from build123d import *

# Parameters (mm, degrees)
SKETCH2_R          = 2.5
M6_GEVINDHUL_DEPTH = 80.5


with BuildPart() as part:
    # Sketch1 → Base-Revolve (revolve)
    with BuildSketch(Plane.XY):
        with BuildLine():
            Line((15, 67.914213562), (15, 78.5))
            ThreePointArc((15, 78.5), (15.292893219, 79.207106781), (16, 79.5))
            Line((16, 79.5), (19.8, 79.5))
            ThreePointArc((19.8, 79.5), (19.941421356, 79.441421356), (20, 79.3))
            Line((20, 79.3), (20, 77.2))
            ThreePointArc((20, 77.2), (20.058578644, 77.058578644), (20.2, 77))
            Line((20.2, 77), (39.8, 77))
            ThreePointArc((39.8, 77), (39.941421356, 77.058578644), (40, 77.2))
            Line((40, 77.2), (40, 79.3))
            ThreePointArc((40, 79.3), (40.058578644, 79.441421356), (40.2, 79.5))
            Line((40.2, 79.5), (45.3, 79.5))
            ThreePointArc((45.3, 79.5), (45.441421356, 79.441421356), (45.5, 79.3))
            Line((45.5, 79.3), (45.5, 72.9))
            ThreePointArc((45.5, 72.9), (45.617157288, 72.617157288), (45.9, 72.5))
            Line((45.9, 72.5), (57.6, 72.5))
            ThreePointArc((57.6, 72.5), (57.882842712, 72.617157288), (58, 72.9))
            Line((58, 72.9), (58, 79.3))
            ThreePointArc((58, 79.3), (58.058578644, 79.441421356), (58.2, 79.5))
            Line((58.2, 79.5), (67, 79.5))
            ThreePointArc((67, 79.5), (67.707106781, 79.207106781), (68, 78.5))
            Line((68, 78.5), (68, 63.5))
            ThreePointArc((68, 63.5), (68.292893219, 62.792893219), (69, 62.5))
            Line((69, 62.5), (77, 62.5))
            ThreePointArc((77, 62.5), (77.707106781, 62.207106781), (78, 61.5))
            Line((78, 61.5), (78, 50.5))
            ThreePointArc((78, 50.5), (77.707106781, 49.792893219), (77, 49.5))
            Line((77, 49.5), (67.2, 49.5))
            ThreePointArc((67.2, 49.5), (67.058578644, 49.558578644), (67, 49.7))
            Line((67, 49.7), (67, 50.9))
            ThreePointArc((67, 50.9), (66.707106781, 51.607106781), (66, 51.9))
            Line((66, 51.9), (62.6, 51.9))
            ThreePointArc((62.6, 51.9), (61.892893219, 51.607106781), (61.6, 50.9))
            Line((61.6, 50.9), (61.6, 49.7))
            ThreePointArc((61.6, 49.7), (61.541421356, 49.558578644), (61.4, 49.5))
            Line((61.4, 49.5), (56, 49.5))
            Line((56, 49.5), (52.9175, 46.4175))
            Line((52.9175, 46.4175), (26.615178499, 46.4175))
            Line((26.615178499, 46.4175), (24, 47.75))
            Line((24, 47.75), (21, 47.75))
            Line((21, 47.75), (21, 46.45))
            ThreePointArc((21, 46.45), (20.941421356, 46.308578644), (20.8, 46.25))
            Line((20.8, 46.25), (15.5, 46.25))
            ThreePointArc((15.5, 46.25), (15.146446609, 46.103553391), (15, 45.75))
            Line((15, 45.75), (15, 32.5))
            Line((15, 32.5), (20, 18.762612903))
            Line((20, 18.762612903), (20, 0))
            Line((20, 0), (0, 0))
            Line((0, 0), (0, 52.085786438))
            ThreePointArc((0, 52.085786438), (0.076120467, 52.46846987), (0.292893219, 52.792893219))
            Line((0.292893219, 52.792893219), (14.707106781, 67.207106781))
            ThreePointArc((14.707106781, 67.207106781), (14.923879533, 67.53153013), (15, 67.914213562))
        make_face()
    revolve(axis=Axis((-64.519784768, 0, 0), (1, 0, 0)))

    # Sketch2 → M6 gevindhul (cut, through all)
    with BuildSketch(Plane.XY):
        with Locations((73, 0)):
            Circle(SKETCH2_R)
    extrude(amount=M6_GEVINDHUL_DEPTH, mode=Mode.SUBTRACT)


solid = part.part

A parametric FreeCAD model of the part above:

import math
import FreeCAD as App
import Part
import Sketcher
Q = App.Units.Quantity

doc = App.newDocument("Part")
body = doc.addObject("PartDesign::Body", "Body")

# Sketch on XY plane
sketch1 = body.newObject("Sketcher::SketchObject", "Sketch")
sketch1.AttachmentSupport = (doc.getObject("XY_Plane"), [""])
sketch1.MapMode = "FlatFace"
sketch1.addGeometry(Part.LineSegment(App.Vector(15, 78.5, 0), App.Vector(15, 67.914214, 0)), False)
sketch1.addGeometry(Part.ArcOfCircle(Part.Circle(App.Vector(14, 67.914214, 0), App.Vector(0, 0, 1), 1), math.radians(-45), math.radians(0)), False)
sketch1.addGeometry(Part.LineSegment(App.Vector(14.707107, 67.207107, 0), App.Vector(0.292893, 52.792893, 0)), False)
sketch1.addGeometry(Part.ArcOfCircle(Part.Circle(App.Vector(1, 52.085786, 0), App.Vector(0, 0, 1), 1), math.radians(135), math.radians(180)), False)
sketch1.addGeometry(Part.LineSegment(App.Vector(0, 52.085786, 0), App.Vector(0, 0, 0)), False)
sketch1.addGeometry(Part.LineSegment(App.Vector(0, 0, 0), App.Vector(20, 0, 0)), False)
sketch1.addGeometry(Part.LineSegment(App.Vector(20, 0, 0), App.Vector(20, 18.762613, 0)), False)
sketch1.addGeometry(Part.LineSegment(App.Vector(20, 18.762613, 0), App.Vector(15, 32.5, 0)), False)
sketch1.addGeometry(Part.LineSegment(App.Vector(15, 32.5, 0), App.Vector(15, 45.75, 0)), False)
sketch1.addGeometry(Part.ArcOfCircle(Part.Circle(App.Vector(15.5, 45.75, 0), App.Vector(0, 0, 1), 0.5), math.radians(90), math.radians(180)), False)
sketch1.addGeometry(Part.LineSegment(App.Vector(15.5, 46.25, 0), App.Vector(20.8, 46.25, 0)), False)
sketch1.addGeometry(Part.ArcOfCircle(Part.Circle(App.Vector(20.8, 46.45, 0), App.Vector(0, 0, 1), 0.2), math.radians(-90), math.radians(0)), False)
sketch1.addGeometry(Part.LineSegment(App.Vector(21, 46.45, 0), App.Vector(21, 47.75, 0)), False)
sketch1.addGeometry(Part.LineSegment(App.Vector(21, 47.75, 0), App.Vector(24, 47.75, 0)), False)
sketch1.addGeometry(Part.LineSegment(App.Vector(24, 47.75, 0), App.Vector(26.615178, 46.4175, 0)), False)
sketch1.addGeometry(Part.LineSegment(App.Vector(26.615178, 46.4175, 0), App.Vector(52.9175, 46.4175, 0)), False)
sketch1.addGeometry(Part.LineSegment(App.Vector(52.9175, 46.4175, 0), App.Vector(56, 49.5, 0)), False)
sketch1.addGeometry(Part.LineSegment(App.Vector(56, 49.5, 0), App.Vector(61.4, 49.5, 0)), False)
sketch1.addGeometry(Part.ArcOfCircle(Part.Circle(App.Vector(61.4, 49.7, 0), App.Vector(0, 0, 1), 0.2), math.radians(-90), math.radians(0)), False)
sketch1.addGeometry(Part.LineSegment(App.Vector(61.6, 49.7, 0), App.Vector(61.6, 50.9, 0)), False)
sketch1.addGeometry(Part.ArcOfCircle(Part.Circle(App.Vector(62.6, 50.9, 0), App.Vector(0, 0, 1), 1), math.radians(90), math.radians(180)), False)
sketch1.addGeometry(Part.LineSegment(App.Vector(62.6, 51.9, 0), App.Vector(66, 51.9, 0)), False)
sketch1.addGeometry(Part.ArcOfCircle(Part.Circle(App.Vector(66, 50.9, 0), App.Vector(0, 0, 1), 1), math.radians(0), math.radians(90)), False)
sketch1.addGeometry(Part.LineSegment(App.Vector(67, 50.9, 0), App.Vector(67, 49.7, 0)), False)
sketch1.addGeometry(Part.ArcOfCircle(Part.Circle(App.Vector(67.2, 49.7, 0), App.Vector(0, 0, 1), 0.2), math.radians(-180), math.radians(-90)), False)
sketch1.addGeometry(Part.LineSegment(App.Vector(67.2, 49.5, 0), App.Vector(77, 49.5, 0)), False)
sketch1.addGeometry(Part.ArcOfCircle(Part.Circle(App.Vector(77, 50.5, 0), App.Vector(0, 0, 1), 1), math.radians(-90), math.radians(0)), False)
sketch1.addGeometry(Part.LineSegment(App.Vector(78, 50.5, 0), App.Vector(78, 61.5, 0)), False)
sketch1.addGeometry(Part.ArcOfCircle(Part.Circle(App.Vector(77, 61.5, 0), App.Vector(0, 0, 1), 1), math.radians(0), math.radians(90)), False)
sketch1.addGeometry(Part.LineSegment(App.Vector(77, 62.5, 0), App.Vector(69, 62.5, 0)), False)
sketch1.addGeometry(Part.ArcOfCircle(Part.Circle(App.Vector(69, 63.5, 0), App.Vector(0, 0, 1), 1), math.radians(-180), math.radians(-90)), False)
sketch1.addGeometry(Part.LineSegment(App.Vector(68, 63.5, 0), App.Vector(68, 78.5, 0)), False)
sketch1.addGeometry(Part.ArcOfCircle(Part.Circle(App.Vector(67, 78.5, 0), App.Vector(0, 0, 1), 1), math.radians(0), math.radians(90)), False)
sketch1.addGeometry(Part.LineSegment(App.Vector(67, 79.5, 0), App.Vector(58.2, 79.5, 0)), False)
sketch1.addGeometry(Part.ArcOfCircle(Part.Circle(App.Vector(58.2, 79.3, 0), App.Vector(0, 0, 1), 0.2), math.radians(90), math.radians(180)), False)
sketch1.addGeometry(Part.LineSegment(App.Vector(58, 79.3, 0), App.Vector(58, 72.9, 0)), False)
sketch1.addGeometry(Part.ArcOfCircle(Part.Circle(App.Vector(57.6, 72.9, 0), App.Vector(0, 0, 1), 0.4), math.radians(-90), math.radians(0)), False)
sketch1.addGeometry(Part.LineSegment(App.Vector(57.6, 72.5, 0), App.Vector(45.9, 72.5, 0)), False)
sketch1.addGeometry(Part.ArcOfCircle(Part.Circle(App.Vector(45.9, 72.9, 0), App.Vector(0, 0, 1), 0.4), math.radians(-180), math.radians(-90)), False)
sketch1.addGeometry(Part.LineSegment(App.Vector(45.5, 72.9, 0), App.Vector(45.5, 79.3, 0)), False)
sketch1.addGeometry(Part.ArcOfCircle(Part.Circle(App.Vector(45.3, 79.3, 0), App.Vector(0, 0, 1), 0.2), math.radians(0), math.radians(90)), False)
sketch1.addGeometry(Part.LineSegment(App.Vector(45.3, 79.5, 0), App.Vector(40.2, 79.5, 0)), False)
sketch1.addGeometry(Part.ArcOfCircle(Part.Circle(App.Vector(40.2, 79.3, 0), App.Vector(0, 0, 1), 0.2), math.radians(90), math.radians(180)), False)
sketch1.addGeometry(Part.LineSegment(App.Vector(40, 79.3, 0), App.Vector(40, 77.2, 0)), False)
sketch1.addGeometry(Part.ArcOfCircle(Part.Circle(App.Vector(39.8, 77.2, 0), App.Vector(0, 0, 1), 0.2), math.radians(-90), math.radians(0)), False)
sketch1.addGeometry(Part.LineSegment(App.Vector(39.8, 77, 0), App.Vector(20.2, 77, 0)), False)
sketch1.addGeometry(Part.ArcOfCircle(Part.Circle(App.Vector(20.2, 77.2, 0), App.Vector(0, 0, 1), 0.2), math.radians(-180), math.radians(-90)), False)
sketch1.addGeometry(Part.LineSegment(App.Vector(20, 77.2, 0), App.Vector(20, 79.3, 0)), False)
sketch1.addGeometry(Part.ArcOfCircle(Part.Circle(App.Vector(19.8, 79.3, 0), App.Vector(0, 0, 1), 0.2), math.radians(0), math.radians(90)), False)
sketch1.addGeometry(Part.LineSegment(App.Vector(19.8, 79.5, 0), App.Vector(16, 79.5, 0)), False)
sketch1.addGeometry(Part.ArcOfCircle(Part.Circle(App.Vector(16, 78.5, 0), App.Vector(0, 0, 1), 1), math.radians(90), math.radians(180)), False)
sketch1.addConstraint(Sketcher.Constraint("Tangent", 0, 2, 1, 2))
sketch1.addConstraint(Sketcher.Constraint("Tangent", 1, 1, 2, 1))
sketch1.addConstraint(Sketcher.Constraint("Tangent", 2, 2, 3, 1))
sketch1.addConstraint(Sketcher.Constraint("Tangent", 3, 2, 4, 1))
sketch1.addConstraint(Sketcher.Constraint("Coincident", 4, 2, 5, 1))
sketch1.addConstraint(Sketcher.Constraint("Coincident", 5, 2, 6, 1))
sketch1.addConstraint(Sketcher.Constraint("Coincident", 6, 2, 7, 1))
sketch1.addConstraint(Sketcher.Constraint("Coincident", 7, 2, 8, 1))
sketch1.addConstraint(Sketcher.Constraint("Tangent", 8, 2, 9, 2))
sketch1.addConstraint(Sketcher.Constraint("Tangent", 9, 1, 10, 1))
sketch1.addConstraint(Sketcher.Constraint("Tangent", 10, 2, 11, 1))
sketch1.addConstraint(Sketcher.Constraint("Tangent", 11, 2, 12, 1))
sketch1.addConstraint(Sketcher.Constraint("Coincident", 12, 2, 13, 1))
sketch1.addConstraint(Sketcher.Constraint("Coincident", 13, 2, 14, 1))
sketch1.addConstraint(Sketcher.Constraint("Coincident", 14, 2, 15, 1))
sketch1.addConstraint(Sketcher.Constraint("Coincident", 15, 2, 16, 1))
sketch1.addConstraint(Sketcher.Constraint("Coincident", 16, 2, 17, 1))
sketch1.addConstraint(Sketcher.Constraint("Tangent", 17, 2, 18, 1))
sketch1.addConstraint(Sketcher.Constraint("Tangent", 18, 2, 19, 1))
sketch1.addConstraint(Sketcher.Constraint("Tangent", 19, 2, 20, 2))
sketch1.addConstraint(Sketcher.Constraint("Tangent", 20, 1, 21, 1))
sketch1.addConstraint(Sketcher.Constraint("Tangent", 21, 2, 22, 2))
sketch1.addConstraint(Sketcher.Constraint("Tangent", 22, 1, 23, 1))
sketch1.addConstraint(Sketcher.Constraint("Tangent", 23, 2, 24, 1))
sketch1.addConstraint(Sketcher.Constraint("Tangent", 24, 2, 25, 1))
sketch1.addConstraint(Sketcher.Constraint("Tangent", 25, 2, 26, 1))
sketch1.addConstraint(Sketcher.Constraint("Tangent", 26, 2, 27, 1))
sketch1.addConstraint(Sketcher.Constraint("Tangent", 27, 2, 28, 1))
sketch1.addConstraint(Sketcher.Constraint("Tangent", 28, 2, 29, 1))
sketch1.addConstraint(Sketcher.Constraint("Tangent", 29, 2, 30, 2))
sketch1.addConstraint(Sketcher.Constraint("Tangent", 30, 1, 31, 1))
sketch1.addConstraint(Sketcher.Constraint("Tangent", 31, 2, 32, 1))
sketch1.addConstraint(Sketcher.Constraint("Tangent", 32, 2, 33, 1))
sketch1.addConstraint(Sketcher.Constraint("Tangent", 33, 2, 34, 1))
sketch1.addConstraint(Sketcher.Constraint("Tangent", 34, 2, 35, 1))
sketch1.addConstraint(Sketcher.Constraint("Tangent", 35, 2, 36, 2))
sketch1.addConstraint(Sketcher.Constraint("Tangent", 36, 1, 37, 1))
sketch1.addConstraint(Sketcher.Constraint("Tangent", 37, 2, 38, 2))
sketch1.addConstraint(Sketcher.Constraint("Tangent", 38, 1, 39, 1))
sketch1.addConstraint(Sketcher.Constraint("Tangent", 39, 2, 40, 1))
sketch1.addConstraint(Sketcher.Constraint("Tangent", 40, 2, 41, 1))
sketch1.addConstraint(Sketcher.Constraint("Tangent", 41, 2, 42, 1))
sketch1.addConstraint(Sketcher.Constraint("Tangent", 42, 2, 43, 1))
sketch1.addConstraint(Sketcher.Constraint("Tangent", 43, 2, 44, 2))
sketch1.addConstraint(Sketcher.Constraint("Tangent", 44, 1, 45, 1))
sketch1.addConstraint(Sketcher.Constraint("Tangent", 45, 2, 46, 2))
sketch1.addConstraint(Sketcher.Constraint("Tangent", 46, 1, 47, 1))
sketch1.addConstraint(Sketcher.Constraint("Tangent", 47, 2, 48, 1))
sketch1.addConstraint(Sketcher.Constraint("Tangent", 48, 2, 49, 1))
sketch1.addConstraint(Sketcher.Constraint("Tangent", 49, 2, 50, 1))
sketch1.addConstraint(Sketcher.Constraint("Tangent", 50, 2, 0, 1))
sketch1.addConstraint(Sketcher.Constraint("Vertical", 0))
sketch1.addConstraint(Sketcher.Constraint("Vertical", 4))
sketch1.addConstraint(Sketcher.Constraint("Horizontal", 5))
sketch1.addConstraint(Sketcher.Constraint("Vertical", 6))
sketch1.addConstraint(Sketcher.Constraint("Vertical", 8))
sketch1.addConstraint(Sketcher.Constraint("Horizontal", 10))
sketch1.addConstraint(Sketcher.Constraint("Vertical", 12))
sketch1.addConstraint(Sketcher.Constraint("Horizontal", 13))
sketch1.addConstraint(Sketcher.Constraint("Horizontal", 15))
sketch1.addConstraint(Sketcher.Constraint("Horizontal", 17))
sketch1.addConstraint(Sketcher.Constraint("Vertical", 19))
sketch1.addConstraint(Sketcher.Constraint("Horizontal", 21))
sketch1.addConstraint(Sketcher.Constraint("Vertical", 23))
sketch1.addConstraint(Sketcher.Constraint("Horizontal", 25))
sketch1.addConstraint(Sketcher.Constraint("Vertical", 27))
sketch1.addConstraint(Sketcher.Constraint("Horizontal", 29))
sketch1.addConstraint(Sketcher.Constraint("Vertical", 31))
sketch1.addConstraint(Sketcher.Constraint("Horizontal", 33))
sketch1.addConstraint(Sketcher.Constraint("Vertical", 35))
sketch1.addConstraint(Sketcher.Constraint("Horizontal", 37))
sketch1.addConstraint(Sketcher.Constraint("Vertical", 39))
sketch1.addConstraint(Sketcher.Constraint("Horizontal", 41))
sketch1.addConstraint(Sketcher.Constraint("Vertical", 43))
sketch1.addConstraint(Sketcher.Constraint("Horizontal", 45))
sketch1.addConstraint(Sketcher.Constraint("Vertical", 47))
sketch1.addConstraint(Sketcher.Constraint("Horizontal", 49))
sketch1.addConstraint(Sketcher.Constraint("Coincident", 4, 2, -1, 1))
sketch1.addConstraint(Sketcher.Constraint("Equal", 1, 3))
sketch1.addConstraint(Sketcher.Constraint("Equal", 11, 18))
sketch1.addConstraint(Sketcher.Constraint("Equal", 3, 20))
sketch1.addConstraint(Sketcher.Constraint("Equal", 20, 22))
sketch1.addConstraint(Sketcher.Constraint("Equal", 18, 24))
sketch1.addConstraint(Sketcher.Constraint("Equal", 22, 26))
sketch1.addConstraint(Sketcher.Constraint("Equal", 26, 28))
sketch1.addConstraint(Sketcher.Constraint("Equal", 28, 30))
sketch1.addConstraint(Sketcher.Constraint("Equal", 30, 32))
sketch1.addConstraint(Sketcher.Constraint("Equal", 24, 34))
sketch1.addConstraint(Sketcher.Constraint("Equal", 36, 38))
sketch1.addConstraint(Sketcher.Constraint("Equal", 34, 40))
sketch1.addConstraint(Sketcher.Constraint("Equal", 40, 42))
sketch1.addConstraint(Sketcher.Constraint("Equal", 42, 44))
sketch1.addConstraint(Sketcher.Constraint("Equal", 44, 46))
sketch1.addConstraint(Sketcher.Constraint("Equal", 46, 48))
sketch1.addConstraint(Sketcher.Constraint("Equal", 32, 50))
sketch1.addConstraint(Sketcher.Constraint("Parallel", 2, 16))
sketch1.addConstraint(Sketcher.Constraint("Horizontal", 18, 3, 24, 3))
sketch1.addConstraint(Sketcher.Constraint("Horizontal", 34, 3, 40, 3))
sketch1.addConstraint(Sketcher.Constraint("Horizontal", 42, 3, 48, 3))
sketch1.addConstraint(Sketcher.Constraint("Vertical", 0, 2, 7, 2))
sketch1.addConstraint(Sketcher.Constraint("Vertical", 32, 3, 22, 1))
sketch1.addConstraint(Sketcher.Constraint("Vertical", 6, 2, 46, 1))
sketch1.addConstraint(Sketcher.Constraint("Radius", 1, 1.0))
sketch1.addConstraint(Sketcher.Constraint("Radius", 9, 0.5))
sketch1.addConstraint(Sketcher.Constraint("Radius", 11, 0.2))
sketch1.addConstraint(Sketcher.Constraint("Radius", 36, 0.4))
sketch1.addConstraint(Sketcher.Constraint("DistanceX", 5, 1, 5, 2, 20.0))
sketch1.addConstraint(Sketcher.Constraint("DistanceX", 13, 1, 13, 2, 3.0))
sketch1.addConstraint(Sketcher.Constraint("DistanceX", 29, 2, 29, 1, 8.0))
sketch1.addConstraint(Sketcher.Constraint("DistanceY", 27, 1, 27, 2, 11.0))
sketch1.addConstraint(Sketcher.Constraint("DistanceY", 31, 1, 31, 2, 15.0))
sketch1.addConstraint(Sketcher.Constraint("Angle", 2, Q("-135 deg")))
sketch1.addConstraint(Sketcher.Constraint("Angle", 7, Q("110 deg")))
sketch1.addConstraint(Sketcher.Constraint("Angle", 14, Q("-27 deg")))
sketch1.addConstraint(Sketcher.Constraint("DistanceX", 10, 1, 10, 2, 5.3))
sketch1.addConstraint(Sketcher.Constraint("DistanceX", 17, 1, 17, 2, 5.4))
sketch1.addConstraint(Sketcher.Constraint("DistanceX", 21, 1, 21, 2, 3.4))
sketch1.addConstraint(Sketcher.Constraint("DistanceX", 33, 2, 33, 1, 8.8))
sketch1.addConstraint(Sketcher.Constraint("DistanceX", 37, 2, 37, 1, 11.7))
sketch1.addConstraint(Sketcher.Constraint("DistanceX", 41, 2, 41, 1, 5.1))
sketch1.addConstraint(Sketcher.Constraint("DistanceX", 45, 2, 45, 1, 19.6))
sketch1.addConstraint(Sketcher.Constraint("DistanceX", 49, 2, 49, 1, 3.8))
sketch1.addConstraint(Sketcher.Constraint("DistanceY", 12, 1, 12, 2, 1.3))
sketch1.addConstraint(Sketcher.Constraint("DistanceY", 19, 1, 19, 2, 1.2))
sketch1.addConstraint(Sketcher.Constraint("DistanceY", 35, 2, 35, 1, 6.4))
sketch1.addConstraint(Sketcher.Constraint("DistanceY", 43, 2, 43, 1, 2.1))
sketch1.addConstraint(Sketcher.Constraint("DistanceY", -1, 1, 44, 1, 77.0))
sketch1.addConstraint(Sketcher.Constraint("DistanceY", 8, 1, 8, 2, 13.25))
sketch1.addConstraint(Sketcher.Constraint("DistanceY", -1, 1, 7, 2, 32.5))
sketch1.addConstraint(Sketcher.Constraint("DistanceX", 15, 1, 15, 2, 26.302322))
sketch1.addConstraint(Sketcher.Constraint("DistanceY", 0, 2, 0, 1, 10.585786))
revolution = body.newObject("PartDesign::Revolution", "Revolution")
revolution.Profile = sketch1
revolution.ReferenceAxis = (sketch1, ["H_Axis"])
revolution.Angle = 360

# Sketch on XY plane
sketch2 = body.newObject("Sketcher::SketchObject", "Sketch001")
sketch2.AttachmentSupport = (doc.getObject("XY_Plane"), [""])
sketch2.MapMode = "FlatFace"
sketch2.addGeometry(Part.Circle(App.Vector(73, 0, 0), App.Vector(0, 0, 1), 2.5), False)
sketch2.addConstraint(Sketcher.Constraint("PointOnObject", 0, 3, -1))
sketch2.addConstraint(Sketcher.Constraint("Diameter", 0, 5.0))
sketch2.addConstraint(Sketcher.Constraint("DistanceX", -1, 1, 0, 3, 73.0))
pocket1 = body.newObject("PartDesign::Pocket", "Pocket")
pocket1.Profile = sketch2
pocket1.Type = "ThroughAll"
pocket1.Reversed = True

doc.recompute()
